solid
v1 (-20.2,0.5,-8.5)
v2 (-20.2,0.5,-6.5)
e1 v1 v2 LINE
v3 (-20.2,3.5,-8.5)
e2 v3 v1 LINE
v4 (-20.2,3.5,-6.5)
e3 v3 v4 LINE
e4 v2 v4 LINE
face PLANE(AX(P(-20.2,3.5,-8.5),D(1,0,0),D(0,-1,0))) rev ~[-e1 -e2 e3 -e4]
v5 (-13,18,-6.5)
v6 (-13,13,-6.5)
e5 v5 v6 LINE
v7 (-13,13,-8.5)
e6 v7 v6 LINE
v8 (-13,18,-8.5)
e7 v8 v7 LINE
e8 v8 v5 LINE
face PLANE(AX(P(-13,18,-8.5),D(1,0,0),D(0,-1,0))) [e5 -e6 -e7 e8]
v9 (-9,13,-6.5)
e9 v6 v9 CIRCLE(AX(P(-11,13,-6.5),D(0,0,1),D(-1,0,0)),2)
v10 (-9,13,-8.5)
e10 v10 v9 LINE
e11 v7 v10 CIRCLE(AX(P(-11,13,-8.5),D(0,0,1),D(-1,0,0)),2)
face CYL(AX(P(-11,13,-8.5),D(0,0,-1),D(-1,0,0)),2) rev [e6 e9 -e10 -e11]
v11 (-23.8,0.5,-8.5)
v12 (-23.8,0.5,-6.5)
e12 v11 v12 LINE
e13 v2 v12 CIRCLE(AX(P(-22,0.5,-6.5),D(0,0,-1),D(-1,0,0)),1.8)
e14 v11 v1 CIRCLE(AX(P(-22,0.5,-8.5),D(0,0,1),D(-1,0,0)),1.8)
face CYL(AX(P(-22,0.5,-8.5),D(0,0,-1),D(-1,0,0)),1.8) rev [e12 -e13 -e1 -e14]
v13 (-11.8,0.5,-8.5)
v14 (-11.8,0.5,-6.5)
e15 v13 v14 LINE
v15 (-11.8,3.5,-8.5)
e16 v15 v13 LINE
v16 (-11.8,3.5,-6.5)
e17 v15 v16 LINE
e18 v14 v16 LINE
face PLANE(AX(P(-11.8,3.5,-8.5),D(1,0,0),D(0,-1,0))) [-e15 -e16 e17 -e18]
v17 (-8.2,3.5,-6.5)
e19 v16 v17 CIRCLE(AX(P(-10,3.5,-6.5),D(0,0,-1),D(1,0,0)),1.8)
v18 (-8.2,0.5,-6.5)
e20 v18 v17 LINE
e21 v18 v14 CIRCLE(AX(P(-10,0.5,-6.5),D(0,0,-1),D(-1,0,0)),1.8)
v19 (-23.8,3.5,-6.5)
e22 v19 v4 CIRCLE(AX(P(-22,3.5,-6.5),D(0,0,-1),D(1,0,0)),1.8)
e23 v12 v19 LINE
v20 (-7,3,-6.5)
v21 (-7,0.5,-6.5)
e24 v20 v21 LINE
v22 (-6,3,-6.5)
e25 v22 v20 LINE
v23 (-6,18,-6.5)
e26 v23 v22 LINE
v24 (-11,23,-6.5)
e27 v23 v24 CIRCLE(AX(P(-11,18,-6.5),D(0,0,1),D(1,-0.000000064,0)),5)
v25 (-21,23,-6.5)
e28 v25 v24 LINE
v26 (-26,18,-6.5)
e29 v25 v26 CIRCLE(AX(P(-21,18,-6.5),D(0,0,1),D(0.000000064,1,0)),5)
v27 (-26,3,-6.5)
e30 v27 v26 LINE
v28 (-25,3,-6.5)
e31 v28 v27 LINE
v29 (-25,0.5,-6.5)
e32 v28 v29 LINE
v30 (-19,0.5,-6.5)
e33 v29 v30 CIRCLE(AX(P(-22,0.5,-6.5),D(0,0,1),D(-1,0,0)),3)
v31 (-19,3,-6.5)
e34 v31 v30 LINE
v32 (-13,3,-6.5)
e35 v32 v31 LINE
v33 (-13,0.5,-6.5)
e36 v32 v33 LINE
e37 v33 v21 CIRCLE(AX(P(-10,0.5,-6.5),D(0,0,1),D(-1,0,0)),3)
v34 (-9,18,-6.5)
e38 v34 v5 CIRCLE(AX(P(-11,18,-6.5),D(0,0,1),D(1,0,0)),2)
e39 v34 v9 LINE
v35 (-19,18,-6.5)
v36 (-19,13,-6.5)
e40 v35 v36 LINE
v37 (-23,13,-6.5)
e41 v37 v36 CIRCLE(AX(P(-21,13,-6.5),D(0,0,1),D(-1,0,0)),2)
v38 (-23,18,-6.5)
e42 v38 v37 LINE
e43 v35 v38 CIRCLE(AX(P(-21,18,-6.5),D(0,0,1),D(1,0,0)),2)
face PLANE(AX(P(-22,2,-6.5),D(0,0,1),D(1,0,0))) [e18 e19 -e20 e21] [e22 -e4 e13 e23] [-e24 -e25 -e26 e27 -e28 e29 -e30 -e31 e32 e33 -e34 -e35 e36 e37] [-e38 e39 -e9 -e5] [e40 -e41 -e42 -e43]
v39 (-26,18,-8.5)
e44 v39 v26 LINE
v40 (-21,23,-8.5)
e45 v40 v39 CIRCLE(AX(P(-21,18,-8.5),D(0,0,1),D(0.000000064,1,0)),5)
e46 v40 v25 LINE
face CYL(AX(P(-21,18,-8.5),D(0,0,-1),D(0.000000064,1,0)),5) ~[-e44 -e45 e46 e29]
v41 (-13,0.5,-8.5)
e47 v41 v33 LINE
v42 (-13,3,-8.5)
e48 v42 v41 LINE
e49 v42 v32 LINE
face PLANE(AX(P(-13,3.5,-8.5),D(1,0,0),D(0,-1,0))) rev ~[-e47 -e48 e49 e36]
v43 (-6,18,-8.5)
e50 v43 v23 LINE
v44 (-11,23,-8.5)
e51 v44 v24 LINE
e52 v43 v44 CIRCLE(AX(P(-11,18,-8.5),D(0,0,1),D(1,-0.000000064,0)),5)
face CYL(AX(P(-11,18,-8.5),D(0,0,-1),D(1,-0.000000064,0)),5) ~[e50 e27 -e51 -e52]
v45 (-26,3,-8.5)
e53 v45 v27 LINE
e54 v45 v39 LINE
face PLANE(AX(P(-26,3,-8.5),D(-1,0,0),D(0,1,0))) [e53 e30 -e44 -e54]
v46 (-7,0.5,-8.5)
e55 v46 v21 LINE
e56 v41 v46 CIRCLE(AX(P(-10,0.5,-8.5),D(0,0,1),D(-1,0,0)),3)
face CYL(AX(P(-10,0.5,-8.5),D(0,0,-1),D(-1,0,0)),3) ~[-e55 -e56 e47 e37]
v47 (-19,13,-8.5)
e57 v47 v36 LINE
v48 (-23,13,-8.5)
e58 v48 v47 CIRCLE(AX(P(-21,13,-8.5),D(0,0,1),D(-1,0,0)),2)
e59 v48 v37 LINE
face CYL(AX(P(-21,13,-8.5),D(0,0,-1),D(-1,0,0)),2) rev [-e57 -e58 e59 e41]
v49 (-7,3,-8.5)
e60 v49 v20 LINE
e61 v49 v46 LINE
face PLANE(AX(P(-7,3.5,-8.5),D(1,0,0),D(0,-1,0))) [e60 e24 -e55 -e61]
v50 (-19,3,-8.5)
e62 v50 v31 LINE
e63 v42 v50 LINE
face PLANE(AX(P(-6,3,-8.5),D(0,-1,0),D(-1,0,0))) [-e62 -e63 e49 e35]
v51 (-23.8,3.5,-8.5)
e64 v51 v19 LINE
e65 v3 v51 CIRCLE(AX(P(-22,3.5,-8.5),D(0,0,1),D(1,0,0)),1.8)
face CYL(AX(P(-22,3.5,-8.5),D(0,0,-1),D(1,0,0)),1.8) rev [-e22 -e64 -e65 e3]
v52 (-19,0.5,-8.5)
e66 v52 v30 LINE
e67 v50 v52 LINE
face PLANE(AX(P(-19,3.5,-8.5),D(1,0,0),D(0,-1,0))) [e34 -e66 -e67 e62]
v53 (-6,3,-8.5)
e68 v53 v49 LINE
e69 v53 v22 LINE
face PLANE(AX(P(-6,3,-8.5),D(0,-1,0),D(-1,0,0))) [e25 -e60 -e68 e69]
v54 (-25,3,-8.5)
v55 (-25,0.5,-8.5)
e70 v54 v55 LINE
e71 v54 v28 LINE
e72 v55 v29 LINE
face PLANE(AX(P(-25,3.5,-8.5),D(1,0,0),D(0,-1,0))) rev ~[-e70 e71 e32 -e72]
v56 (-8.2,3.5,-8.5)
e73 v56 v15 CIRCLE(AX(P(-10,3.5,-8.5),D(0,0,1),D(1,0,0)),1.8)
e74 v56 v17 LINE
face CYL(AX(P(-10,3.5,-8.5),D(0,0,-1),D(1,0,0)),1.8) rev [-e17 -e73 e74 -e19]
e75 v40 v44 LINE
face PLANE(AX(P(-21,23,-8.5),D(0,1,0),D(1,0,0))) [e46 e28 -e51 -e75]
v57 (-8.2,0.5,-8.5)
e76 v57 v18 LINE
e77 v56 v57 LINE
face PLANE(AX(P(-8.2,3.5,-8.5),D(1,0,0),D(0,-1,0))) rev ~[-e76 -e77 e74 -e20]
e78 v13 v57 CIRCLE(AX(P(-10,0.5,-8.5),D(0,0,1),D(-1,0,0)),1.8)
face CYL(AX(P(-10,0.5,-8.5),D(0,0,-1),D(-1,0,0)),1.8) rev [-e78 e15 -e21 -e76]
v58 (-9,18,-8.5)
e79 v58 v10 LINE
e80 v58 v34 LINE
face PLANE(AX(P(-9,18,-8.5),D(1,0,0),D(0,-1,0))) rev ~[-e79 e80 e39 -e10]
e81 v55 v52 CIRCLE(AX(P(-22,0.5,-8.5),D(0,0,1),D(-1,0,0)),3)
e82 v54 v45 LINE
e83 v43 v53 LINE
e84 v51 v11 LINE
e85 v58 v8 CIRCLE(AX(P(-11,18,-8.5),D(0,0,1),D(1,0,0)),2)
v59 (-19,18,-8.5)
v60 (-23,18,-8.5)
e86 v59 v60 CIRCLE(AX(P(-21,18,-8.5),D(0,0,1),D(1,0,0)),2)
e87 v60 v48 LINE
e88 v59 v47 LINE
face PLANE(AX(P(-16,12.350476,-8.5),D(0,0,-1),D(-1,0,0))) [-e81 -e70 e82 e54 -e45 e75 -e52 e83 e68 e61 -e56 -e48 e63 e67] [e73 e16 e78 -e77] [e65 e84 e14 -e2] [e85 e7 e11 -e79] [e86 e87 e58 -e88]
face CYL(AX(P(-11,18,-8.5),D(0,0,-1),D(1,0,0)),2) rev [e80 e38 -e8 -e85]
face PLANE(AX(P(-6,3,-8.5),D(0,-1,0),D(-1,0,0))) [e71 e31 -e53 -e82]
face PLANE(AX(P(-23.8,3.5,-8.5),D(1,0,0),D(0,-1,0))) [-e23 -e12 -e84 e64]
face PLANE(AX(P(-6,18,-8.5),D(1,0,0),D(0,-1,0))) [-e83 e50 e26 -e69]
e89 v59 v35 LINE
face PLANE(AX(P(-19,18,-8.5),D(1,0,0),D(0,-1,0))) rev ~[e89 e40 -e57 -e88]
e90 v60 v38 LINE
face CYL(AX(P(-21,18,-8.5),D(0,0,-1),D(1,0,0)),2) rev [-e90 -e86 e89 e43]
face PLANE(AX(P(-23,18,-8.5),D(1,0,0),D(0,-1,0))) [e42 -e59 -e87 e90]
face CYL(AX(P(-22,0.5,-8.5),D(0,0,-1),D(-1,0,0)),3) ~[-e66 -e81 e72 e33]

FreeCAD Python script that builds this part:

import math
import FreeCAD as App
import Part
import Sketcher

V = App.Vector
Q = App.Units.Quantity

doc = App.newDocument("Part")
body = doc.addObject("PartDesign::Body", "Body")

# Sketch on XY plane
sketch1 = body.newObject("Sketcher::SketchObject", "Sketch")
sketch1.AttachmentSupport = (doc.getObject("XY_Plane"), [""])
sketch1.MapMode = "FlatFace"
sketch1.addGeometry([
    Part.LineSegment(V(5, 21, 0), V(-5, 21, 0)),  # 0
    Part.ArcOfCircle(Part.Circle(V(-5, 16, 0), V(0, 0, 1), 5), math.radians(89.999996), math.radians(180.000004)),  # 1
    Part.LineSegment(V(-10, 16, 0), V(-10, 1, 0)),  # 2
    Part.LineSegment(V(-10, 1, 0), V(10, 1, 0)),  # 3
    Part.LineSegment(V(10, 1, 0), V(10, 16, 0)),  # 4
    Part.ArcOfCircle(Part.Circle(V(5, 16, 0), V(0, 0, 1), 5), math.radians(-0.000004), math.radians(90.000004)),  # 5
    Part.LineSegment(V(7, 16, 0), V(7, 11, 0)),  # 6
    Part.ArcOfCircle(Part.Circle(V(5, 11, 0), V(0, 0, 1), 2), math.radians(180), math.radians(360)),  # 7
    Part.LineSegment(V(3, 11, 0), V(3, 16, 0)),  # 8
    Part.ArcOfCircle(Part.Circle(V(5, 16, 0), V(0, 0, 1), 2), math.radians(0), math.radians(180)),  # 9
    Part.LineSegment(V(-3, 16, 0), V(-3, 11, 0)),  # 10
    Part.ArcOfCircle(Part.Circle(V(-5, 11, 0), V(0, 0, 1), 2), math.radians(180), math.radians(360)),  # 11
    Part.LineSegment(V(-7, 11, 0), V(-7, 16, 0)),  # 12
    Part.ArcOfCircle(Part.Circle(V(-5, 16, 0), V(0, 0, 1), 2), math.radians(0), math.radians(180)),  # 13
], False)
sketch1.addConstraint([
    Sketcher.Constraint("Tangent", 0, 2, 1, 1),
    Sketcher.Constraint("Tangent", 1, 2, 2, 1),
    Sketcher.Constraint("Coincident", 2, 2, 3, 1),
    Sketcher.Constraint("Coincident", 3, 2, 4, 1),
    Sketcher.Constraint("Tangent", 4, 2, 5, 1),
    Sketcher.Constraint("Tangent", 5, 2, 0, 1),
    Sketcher.Constraint("Tangent", 6, 2, 7, 2),
    Sketcher.Constraint("Tangent", 7, 1, 8, 1),
    Sketcher.Constraint("Tangent", 8, 2, 9, 2),
    Sketcher.Constraint("Tangent", 9, 1, 6, 1),
    Sketcher.Constraint("Tangent", 10, 2, 11, 2),
    Sketcher.Constraint("Tangent", 11, 1, 12, 1),
    Sketcher.Constraint("Tangent", 12, 2, 13, 2),
    Sketcher.Constraint("Tangent", 13, 1, 10, 1),
    Sketcher.Constraint("Horizontal", 0),
    Sketcher.Constraint("Vertical", 2),
    Sketcher.Constraint("Horizontal", 3),
    Sketcher.Constraint("Vertical", 4),
    Sketcher.Constraint("Vertical", 6),
    Sketcher.Constraint("Vertical", 8),
    Sketcher.Constraint("Vertical", 10),
    Sketcher.Constraint("Vertical", 12),
    Sketcher.Constraint("Coincident", 9, 3, 5, 3),
    Sketcher.Constraint("Coincident", 13, 3, 1, 3),
    Sketcher.Constraint("Equal", 1, 5),
    Sketcher.Constraint("Equal", 9, 11),
    Sketcher.Constraint("Symmetric", 7, 3, 11, 3, -2),
    Sketcher.Constraint("Radius", 1, Q("5 mm")),
    Sketcher.Constraint("Radius", 7, Q("2 mm")),
    Sketcher.Constraint("DistanceX", 0, 2, 0, 1, Q("10 mm")),
    Sketcher.Constraint("DistanceY", 2, 2, 2, 1, Q("15 mm")),
    Sketcher.Constraint("DistanceY", 6, 2, 6, 1, Q("5 mm")),
    Sketcher.Constraint("DistanceY", -1, 1, 1, 3, Q("16 mm")),
])
pad1 = body.newObject("PartDesign::Pad", "Pad")
pad1.Profile = sketch1
pad1.Length = 2

# Sketch on XY plane
sketch2 = body.newObject("Sketcher::SketchObject", "Sketch001")
sketch2.AttachmentSupport = (doc.getObject("XY_Plane"), [""])
sketch2.MapMode = "FlatFace"
sketch2.addGeometry([
    Part.ArcOfCircle(Part.Circle(V(-6, 1.5, 0), V(0, 0, 1), 3), math.radians(0), math.radians(180)),  # 0
    Part.LineSegment(V(-9, 1.5, 0), V(-9, -1.5, 0)),  # 1
    Part.ArcOfCircle(Part.Circle(V(-6, -1.5, 0), V(0, 0, 1), 3), math.radians(180), math.radians(360)),  # 2
    Part.LineSegment(V(-3, -1.5, 0), V(-3, 1.5, 0)),  # 3
    Part.ArcOfCircle(Part.Circle(V(6, 1.5, 0), V(0, 0, 1), 3), math.radians(0), math.radians(180)),  # 4
    Part.LineSegment(V(3, 1.5, 0), V(3, -1.5, 0)),  # 5
    Part.ArcOfCircle(Part.Circle(V(6, -1.5, 0), V(0, 0, 1), 3), math.radians(180), math.radians(360)),  # 6
    Part.LineSegment(V(9, -1.5, 0), V(9, 1.5, 0)),  # 7
], False)
sketch2.addConstraint([
    Sketcher.Constraint("Tangent", 0, 2, 1, 1),
    Sketcher.Constraint("Tangent", 1, 2, 2, 1),
    Sketcher.Constraint("Tangent", 2, 2, 3, 1),
    Sketcher.Constraint("Tangent", 3, 2, 0, 1),
    Sketcher.Constraint("Tangent", 4, 2, 5, 1),
    Sketcher.Constraint("Tangent", 5, 2, 6, 1),
    Sketcher.Constraint("Tangent", 6, 2, 7, 1),
    Sketcher.Constraint("Tangent", 7, 2, 4, 1),
    Sketcher.Constraint("Vertical", 1),
    Sketcher.Constraint("Vertical", 3),
    Sketcher.Constraint("Vertical", 5),
    Sketcher.Constraint("Vertical", 7),
    Sketcher.Constraint("Equal", 2, 4),
    Sketcher.Constraint("Symmetric", 2, 3, 4, 3, -1, 1),
    Sketcher.Constraint("Horizontal", 0, 3, 4, 3),
    Sketcher.Constraint("Horizontal", 2, 3, 6, 3),
    Sketcher.Constraint("Radius", 0, Q("3 mm")),
    Sketcher.Constraint("DistanceY", 1, 2, 1, 1, Q("3 mm")),
    Sketcher.Constraint("DistanceX", 0, 3, -1, 1, Q("6 mm")),
])
pad2 = body.newObject("PartDesign::Pad", "Pad001")
pad2.Profile = sketch2
pad2.Length = 2

# Sketch on XY plane
sketch3 = body.newObject("Sketcher::SketchObject", "Sketch002")
sketch3.AttachmentSupport = (doc.getObject("XY_Plane"), [""])
sketch3.MapMode = "FlatFace"
sketch3.addGeometry([
    Part.ArcOfCircle(Part.Circle(V(-6, 1.5, 0), V(0, 0, 1), 1.8), math.radians(0), math.radians(180)),  # 0
    Part.LineSegment(V(-7.8, 1.5, 0), V(-7.8, -1.5, 0)),  # 1
    Part.ArcOfCircle(Part.Circle(V(-6, -1.5, 0), V(0, 0, 1), 1.8), math.radians(180), math.radians(360)),  # 2
    Part.LineSegment(V(-4.2, -1.5, 0), V(-4.2, 1.5, 0)),  # 3
    Part.ArcOfCircle(Part.Circle(V(6, 1.5, 0), V(0, 0, 1), 1.8), math.radians(0), math.radians(180)),  # 4
    Part.LineSegment(V(4.2, 1.5, 0), V(4.2, -1.5, 0)),  # 5
    Part.ArcOfCircle(Part.Circle(V(6, -1.5, 0), V(0, 0, 1), 1.8), math.radians(180), math.radians(360)),  # 6
    Part.LineSegment(V(7.8, -1.5, 0), V(7.8, 1.5, 0)),  # 7
], False)
sketch3.addConstraint([
    Sketcher.Constraint("Tangent", 0, 2, 1, 1),
    Sketcher.Constraint("Tangent", 1, 2, 2, 1),
    Sketcher.Constraint("Tangent", 2, 2, 3, 1),
    Sketcher.Constraint("Tangent", 3, 2, 0, 1),
    Sketcher.Constraint("Tangent", 4, 2, 5, 1),
    Sketcher.Constraint("Tangent", 5, 2, 6, 1),
    Sketcher.Constraint("Tangent", 6, 2, 7, 1),
    Sketcher.Constraint("Tangent", 7, 2, 4, 1),
    Sketcher.Constraint("Vertical", 1),
    Sketcher.Constraint("Vertical", 3),
    Sketcher.Constraint("Vertical", 5),
    Sketcher.Constraint("Vertical", 7),
    Sketcher.Constraint("Equal", 2, 4),
    Sketcher.Constraint("Symmetric", 2, 3, 4, 3, -1, 1),
    Sketcher.Constraint("Horizontal", 0, 3, 4, 3),
    Sketcher.Constraint("Horizontal", 2, 3, 6, 3),
    Sketcher.Constraint("Radius", 0, Q("1.8 mm")),
    Sketcher.Constraint("DistanceY", 1, 2, 1, 1, Q("3 mm")),
    Sketcher.Constraint("DistanceX", 0, 3, -1, 1, Q("6 mm")),
])
pocket1 = body.newObject("PartDesign::Pocket", "Pocket")
pocket1.Profile = sketch3
pocket1.Type = "ThroughAll"
pocket1.Reversed = True
body2 = doc.addObject("PartDesign::Body", "Body001")
doc.recompute()

body.Placement = App.Placement(V(-16, 2, -8.5), App.Rotation(V(0, 0, 1), 0))
boolean = body2.newObject("PartDesign::Boolean", "Boolean")
boolean.Type = "Fuse"
boolean.addObjects([body])

doc.recompute()
